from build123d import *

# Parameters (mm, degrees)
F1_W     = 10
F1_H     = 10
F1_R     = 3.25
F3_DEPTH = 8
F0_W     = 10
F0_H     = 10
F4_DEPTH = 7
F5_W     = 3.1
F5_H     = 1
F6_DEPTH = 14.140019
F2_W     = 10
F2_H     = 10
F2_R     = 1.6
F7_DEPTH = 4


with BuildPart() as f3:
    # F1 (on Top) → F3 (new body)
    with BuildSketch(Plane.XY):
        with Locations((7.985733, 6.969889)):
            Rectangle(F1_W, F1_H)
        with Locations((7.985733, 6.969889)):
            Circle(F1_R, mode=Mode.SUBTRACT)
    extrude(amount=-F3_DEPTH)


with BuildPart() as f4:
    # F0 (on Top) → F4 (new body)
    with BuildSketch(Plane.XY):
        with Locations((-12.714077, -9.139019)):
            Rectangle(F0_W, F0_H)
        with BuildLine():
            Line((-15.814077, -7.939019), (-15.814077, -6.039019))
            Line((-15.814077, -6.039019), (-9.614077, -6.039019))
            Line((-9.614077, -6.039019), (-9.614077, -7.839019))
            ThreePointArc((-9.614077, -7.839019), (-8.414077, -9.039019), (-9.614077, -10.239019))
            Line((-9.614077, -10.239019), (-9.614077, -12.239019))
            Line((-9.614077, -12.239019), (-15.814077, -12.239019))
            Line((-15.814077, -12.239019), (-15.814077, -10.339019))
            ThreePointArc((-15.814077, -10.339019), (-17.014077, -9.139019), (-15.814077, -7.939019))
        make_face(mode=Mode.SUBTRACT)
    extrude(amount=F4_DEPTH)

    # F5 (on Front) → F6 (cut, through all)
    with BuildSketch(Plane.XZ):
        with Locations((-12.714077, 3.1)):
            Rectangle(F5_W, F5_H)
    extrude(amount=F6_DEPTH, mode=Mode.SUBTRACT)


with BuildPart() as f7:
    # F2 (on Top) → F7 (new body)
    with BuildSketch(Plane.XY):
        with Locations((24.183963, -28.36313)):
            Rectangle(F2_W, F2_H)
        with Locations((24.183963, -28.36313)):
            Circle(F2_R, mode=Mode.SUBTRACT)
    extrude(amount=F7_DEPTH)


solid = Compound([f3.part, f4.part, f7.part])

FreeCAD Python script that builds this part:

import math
import FreeCAD as App
import Part
import Sketcher

V = App.Vector


def add_polygon(sketch, points):
    """Adds a closed chain of lines whose ends are joined by coincident constraints."""
    first, n = sketch.GeometryCount, len(points)
    for a, b in zip(points, points[1:] + points[:1]):
        sketch.addGeometry(Part.LineSegment(App.Vector(*a, 0), App.Vector(*b, 0)), False)
    for i in range(n):
        sketch.addConstraint(Sketcher.Constraint("Coincident", first + i, 2, first + (i + 1) % n, 1))

doc = App.newDocument("Part")
body = doc.addObject("PartDesign::Body", "Body")

sketch1 = body.newObject("Sketcher::SketchObject", "Sketch")
sketch1.AttachmentSupport = (doc.getObject("XY_Plane"), [""])
sketch1.MapMode = "FlatFace"
add_polygon(sketch1, [(3, 12), (3, 2), (13, 2), (13, 12)])
sketch1.addGeometry(Part.Circle(V(8, 7, 0), V(0, 0, 1), 3.2), False)
sketch1.addConstraint(Sketcher.Constraint("Vertical", 0))
sketch1.addConstraint(Sketcher.Constraint("Horizontal", 1))
sketch1.addConstraint(Sketcher.Constraint("Vertical", 2))
sketch1.addConstraint(Sketcher.Constraint("Horizontal", 3))
sketch1.addConstraint(Sketcher.Constraint("Equal", 3, 0))
sketch1.addConstraint(Sketcher.Constraint("Diameter", 4, 6.5))
sketch1.addConstraint(Sketcher.Constraint("DistanceX", 1, 1, 1, 2, 10.0))
sketch1.addConstraint(Sketcher.Constraint("DistanceX", 0, 2, 4, 3, 5.0))
sketch1.addConstraint(Sketcher.Constraint("DistanceY", 0, 2, 4, 3, 5.0))
sketch1.addConstraint(Sketcher.Constraint("DistanceY", -1, 1, 4, 3, 6.969889))
sketch1.addConstraint(Sketcher.Constraint("DistanceX", -1, 1, 4, 3, 7.985733))
pad1 = body.newObject("PartDesign::Pad", "Pad")
pad1.Profile = sketch1
pad1.Length = 8
pad1.Reversed = True
body2 = doc.addObject("PartDesign::Body", "Body001")

sketch2 = body2.newObject("Sketcher::SketchObject", "Sketch001")
sketch2.AttachmentSupport = (doc.getObject("XY_Plane001"), [""])
sketch2.MapMode = "FlatFace"
add_polygon(sketch2, [(-17.7, -4.1), (-17.7, -14.1), (-7.7, -14.1), (-7.7, -4.1)])
sketch2.addGeometry(Part.ArcOfCircle(Part.Circle(V(-15.8, -9.1, 0), V(0, 0, 1), 1.2), math.radians(90), math.radians(270)), False)
sketch2.addGeometry(Part.LineSegment(V(-15.8, -7.9, 0), V(-15.8, -6, 0)), False)
sketch2.addGeometry(Part.LineSegment(V(-15.8, -6, 0), V(-9.6, -6, 0)), False)
sketch2.addGeometry(Part.LineSegment(V(-9.6, -6, 0), V(-9.6, -7.8, 0)), False)
sketch2.addGeometry(Part.ArcOfCircle(Part.Circle(V(-9.6, -9, 0), V(0, 0, 1), 1.2), math.radians(-90), math.radians(90)), False)
sketch2.addGeometry(Part.LineSegment(V(-9.6, -10.2, 0), V(-9.6, -12.2, 0)), False)
sketch2.addGeometry(Part.LineSegment(V(-9.6, -12.2, 0), V(-15.8, -12.2, 0)), False)
sketch2.addGeometry(Part.LineSegment(V(-15.8, -12.2, 0), V(-15.8, -10.3, 0)), False)
sketch2.addConstraint(Sketcher.Constraint("Coincident", 4, 1, 5, 1))
sketch2.addConstraint(Sketcher.Constraint("Coincident", 5, 2, 6, 1))
sketch2.addConstraint(Sketcher.Constraint("Coincident", 6, 2, 7, 1))
sketch2.addConstraint(Sketcher.Constraint("Coincident", 7, 2, 8, 2))
sketch2.addConstraint(Sketcher.Constraint("Coincident", 8, 1, 9, 1))
sketch2.addConstraint(Sketcher.Constraint("Coincident", 9, 2, 10, 1))
sketch2.addConstraint(Sketcher.Constraint("Coincident", 10, 2, 11, 1))
sketch2.addConstraint(Sketcher.Constraint("Coincident", 11, 2, 4, 2))
sketch2.addConstraint(Sketcher.Constraint("Vertical", 0))
sketch2.addConstraint(Sketcher.Constraint("Horizontal", 1))
sketch2.addConstraint(Sketcher.Constraint("Vertical", 2))
sketch2.addConstraint(Sketcher.Constraint("Horizontal", 3))
sketch2.addConstraint(Sketcher.Constraint("Vertical", 5))
sketch2.addConstraint(Sketcher.Constraint("Horizontal", 6))
sketch2.addConstraint(Sketcher.Constraint("Vertical", 7))
sketch2.addConstraint(Sketcher.Constraint("Vertical", 9))
sketch2.addConstraint(Sketcher.Constraint("Horizontal", 10))
sketch2.addConstraint(Sketcher.Constraint("Vertical", 11))
sketch2.addConstraint(Sketcher.Constraint("Equal", 4, 8))
sketch2.addConstraint(Sketcher.Constraint("Vertical", 8, 3, 6, 2))
sketch2.addConstraint(Sketcher.Constraint("Vertical", 7, 2, 8, 1))
sketch2.addConstraint(Sketcher.Constraint("Vertical", 5, 2, 10, 2))
sketch2.addConstraint(Sketcher.Constraint("Equal", 3, 0))
sketch2.addConstraint(Sketcher.Constraint("Equal", 5, 11))
sketch2.addConstraint(Sketcher.Constraint("Radius", 4, 1.2))
sketch2.addConstraint(Sketcher.Constraint("DistanceX", 1, 1, 1, 2, 10.0))
sketch2.addConstraint(Sketcher.Constraint("DistanceY", 9, 2, 9, 1, 2.0))
sketch2.addConstraint(Sketcher.Constraint("DistanceX", 6, 1, 6, 2, 6.2))
sketch2.addConstraint(Sketcher.Constraint("DistanceY", 5, 1, 5, 2, 1.9))
sketch2.addConstraint(Sketcher.Constraint("DistanceY", 0, 2, 4, 3, 5.0))
sketch2.addConstraint(Sketcher.Constraint("DistanceX", 4, 3, 8, 3, 6.2))
sketch2.addConstraint(Sketcher.Constraint("DistanceX", 0, 2, 4, 3, 1.9))
sketch2.addConstraint(Sketcher.Constraint("DistanceY", 4, 3, -1, 1, 9.139019))
sketch2.addConstraint(Sketcher.Constraint("DistanceX", 4, 3, -1, 1, 15.814077))
pad2 = body2.newObject("PartDesign::Pad", "Pad001")
pad2.Profile = sketch2
pad2.Length = 7

sketch3 = body2.newObject("Sketcher::SketchObject", "Sketch002")
sketch3.AttachmentSupport = (doc.getObject("XZ_Plane001"), [""])
sketch3.MapMode = "FlatFace"
add_polygon(sketch3, [(-14.3, 3.6), (-14.3, 2.6), (-11.2, 2.6), (-11.2, 3.6)])
sketch3.addConstraint(Sketcher.Constraint("Vertical", 0))
sketch3.addConstraint(Sketcher.Constraint("Horizontal", 1))
sketch3.addConstraint(Sketcher.Constraint("Vertical", 2))
sketch3.addConstraint(Sketcher.Constraint("Horizontal", 3))
sketch3.addConstraint(Sketcher.Constraint("DistanceY", 0, 2, 0, 1, 1.0))
sketch3.addConstraint(Sketcher.Constraint("DistanceX", 1, 1, 1, 2, 3.1))
sketch3.addConstraint(Sketcher.Constraint("DistanceY", -1, 1, 0, 2, 2.6))
sketch3.addConstraint(Sketcher.Constraint("DistanceX", 0, 2, -1, 1, 14.264077))
pocket1 = body2.newObject("PartDesign::Pocket", "Pocket")
pocket1.Profile = sketch3
pocket1.Type = "ThroughAll"
pocket1.Reversed = True
body3 = doc.addObject("PartDesign::Body", "Body002")

sketch4 = body3.newObject("Sketcher::SketchObject", "Sketch003")
sketch4.AttachmentSupport = (doc.getObject("XY_Plane002"), [""])
sketch4.MapMode = "FlatFace"
add_polygon(sketch4, [(19.2, -23.4), (19.2, -33.4), (29.2, -33.4), (29.2, -23.4)])
sketch4.addGeometry(Part.Circle(V(24.2, -28.4, 0), V(0, 0, 1), 1.6), False)
sketch4.addConstraint(Sketcher.Constraint("Vertical", 0))
sketch4.addConstraint(Sketcher.Constraint("Horizontal", 1))
sketch4.addConstraint(Sketcher.Constraint("Vertical", 2))
sketch4.addConstraint(Sketcher.Constraint("Horizontal", 3))
sketch4.addConstraint(Sketcher.Constraint("Equal", 3, 0))
sketch4.addConstraint(Sketcher.Constraint("Diameter", 4, 3.2))
sketch4.addConstraint(Sketcher.Constraint("DistanceX", 1, 1, 1, 2, 10.0))
sketch4.addConstraint(Sketcher.Constraint("DistanceX", 0, 2, 4, 3, 5.0))
sketch4.addConstraint(Sketcher.Constraint("DistanceY", 0, 2, 4, 3, 5.0))
sketch4.addConstraint(Sketcher.Constraint("DistanceY", 4, 3, -1, 1, 28.36313))
sketch4.addConstraint(Sketcher.Constraint("DistanceX", -1, 1, 4, 3, 24.183963))
pad3 = body3.newObject("PartDesign::Pad", "Pad002")
pad3.Profile = sketch4
pad3.Length = 4

doc.recompute()
